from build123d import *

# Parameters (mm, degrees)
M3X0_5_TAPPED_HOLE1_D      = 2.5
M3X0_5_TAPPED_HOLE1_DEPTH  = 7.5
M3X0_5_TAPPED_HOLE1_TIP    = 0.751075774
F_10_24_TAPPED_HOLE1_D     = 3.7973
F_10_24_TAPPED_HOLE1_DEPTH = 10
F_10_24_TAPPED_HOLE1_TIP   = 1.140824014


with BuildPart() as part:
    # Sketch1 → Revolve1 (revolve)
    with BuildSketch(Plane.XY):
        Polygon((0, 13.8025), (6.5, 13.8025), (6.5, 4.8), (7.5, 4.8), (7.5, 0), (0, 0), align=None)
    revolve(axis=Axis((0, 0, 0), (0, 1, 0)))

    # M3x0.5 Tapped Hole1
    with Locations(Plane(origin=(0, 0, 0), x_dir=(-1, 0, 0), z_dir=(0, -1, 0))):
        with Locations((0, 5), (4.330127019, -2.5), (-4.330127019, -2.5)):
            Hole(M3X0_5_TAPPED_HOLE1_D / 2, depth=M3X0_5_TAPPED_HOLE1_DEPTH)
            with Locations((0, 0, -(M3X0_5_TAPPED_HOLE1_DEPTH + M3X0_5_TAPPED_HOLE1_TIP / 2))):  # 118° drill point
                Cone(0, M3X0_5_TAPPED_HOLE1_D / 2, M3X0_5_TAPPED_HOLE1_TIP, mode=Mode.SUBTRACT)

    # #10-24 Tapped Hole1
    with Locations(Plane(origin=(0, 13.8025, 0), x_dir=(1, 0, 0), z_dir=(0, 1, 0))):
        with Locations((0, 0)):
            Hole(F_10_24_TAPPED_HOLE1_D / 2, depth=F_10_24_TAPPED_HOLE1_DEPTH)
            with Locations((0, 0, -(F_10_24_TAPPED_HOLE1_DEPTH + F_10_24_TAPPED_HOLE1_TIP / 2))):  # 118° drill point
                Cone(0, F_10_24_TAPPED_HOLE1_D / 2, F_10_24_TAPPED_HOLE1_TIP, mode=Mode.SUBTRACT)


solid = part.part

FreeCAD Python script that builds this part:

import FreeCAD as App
import Part
import Sketcher
from FreeCAD import Vector
Q = App.Units.Quantity


def add_polygon(sketch, points):
    """Adds a closed chain of lines whose ends are joined by coincident constraints."""
    first, n = sketch.GeometryCount, len(points)
    for a, b in zip(points, points[1:] + points[:1]):
        sketch.addGeometry(Part.LineSegment(App.Vector(*a, 0), App.Vector(*b, 0)), False)
    for i in range(n):
        sketch.addConstraint(Sketcher.Constraint("Coincident", first + i, 2, first + (i + 1) % n, 1))

doc = App.newDocument("Part")
params = doc.addObject("Spreadsheet::Sheet", "Params")
for row, (alias, value) in enumerate([
    ("sketch1_width", "1 mm"),
    ("sketch1_width2", "6.5 mm"),
    ("sketch1_height", "4.8 mm"),
    ("revolution_angle", "360 deg"),
    ("sketch2_diameter", "2.5 mm"),
    ("hole_diameter", "2.5 mm"),
    ("hole_depth", "7.5 mm"),
    ("hole2_diameter", "3.7973 mm"),
    ("hole2_depth", "10 mm"),
], start=1):
    params.set(f"A{row}", alias)
    params.set(f"B{row}", "=" + value)
    params.setAlias(f"B{row}", alias)

body = doc.addObject("PartDesign::Body", "Body")

sketch1 = body.newObject("Sketcher::SketchObject", "Sketch")
sketch1.AttachmentSupport = (doc.getObject("XY_Plane"), [""])
sketch1.MapMode = "FlatFace"
add_polygon(sketch1, [(6.5, 13.8), (0, 13.8), (0, 0), (7.5, 0), (7.5, 4.8), (6.5, 4.8)])
sketch1.addConstraint([
    Sketcher.Constraint("Horizontal", 0),
    Sketcher.Constraint("Vertical", 1),
    Sketcher.Constraint("Horizontal", 2),
    Sketcher.Constraint("Vertical", 3),
    Sketcher.Constraint("Horizontal", 4),
    Sketcher.Constraint("Vertical", 5),
    Sketcher.Constraint("Coincident", 1, 2, -1, 1),
    Sketcher.Constraint("DistanceX", 4, 2, 4, 1, Q("1 mm")),
    Sketcher.Constraint("DistanceX", 0, 2, 0, 1, Q("6.5 mm")),
    Sketcher.Constraint("DistanceY", 3, 1, 3, 2, Q("4.8 mm")),
    Sketcher.Constraint("DistanceY", 1, 2, 1, 1, Q("13.8025 mm")),
])
sketch1.setExpression("Constraints[13]", "Params.sketch1_width")
sketch1.setExpression("Constraints[14]", "Params.sketch1_width2")
sketch1.setExpression("Constraints[15]", "Params.sketch1_height")
revolution = body.newObject("PartDesign::Revolution", "Revolution")
revolution.Profile = sketch1
revolution.ReferenceAxis = (sketch1, ["V_Axis"])
revolution.setExpression("Angle", "Params.revolution_angle")

sketch2 = body.newObject("Sketcher::SketchObject", "Sketch001")
sketch2.AttachmentSupport = (doc.getObject("XZ_Plane"), [""])
sketch2.MapMode = "FlatFace"
sketch2.addGeometry([
    Part.Circle(Vector(0, -5, 0), Vector(0, 0, 1), 1.2),
    Part.Circle(Vector(-4.3, 2.5, 0), Vector(0, 0, 1), 1.2),
    Part.Circle(Vector(4.3, 2.5, 0), Vector(0, 0, 1), 1.2),
], False)
sketch2.addConstraint([
    Sketcher.Constraint("Equal", 0, 1),
    Sketcher.Constraint("Equal", 1, 2),
    Sketcher.Constraint("Symmetric", 1, 3, 2, 3, -2),
    Sketcher.Constraint("PointOnObject", 0, 3, -2),
    Sketcher.Constraint("Diameter", 0, Q("2.5 mm")),
    Sketcher.Constraint("DistanceY", 0, 3, -1, 1, Q("5 mm")),
    Sketcher.Constraint("DistanceY", -1, 1, 1, 3, Q("2.5 mm")),
    Sketcher.Constraint("DistanceX", 1, 3, -1, 1, Q("4.330127 mm")),
])
sketch2.setExpression("Constraints[4]", "Params.sketch2_diameter")
doc.recompute()
hole = body.newObject("PartDesign::Hole", "Hole")
hole.Profile = sketch2
hole.ThreadType = "None"
hole.setExpression("Diameter", "Params.hole_diameter")
hole.DepthType = "Dimension"
hole.setExpression("Depth", "Params.hole_depth")
hole.DrillPoint = "Angled"
hole.DrillPointAngle = 118

sketch3 = body.newObject("Sketcher::SketchObject", "Sketch002")
sketch3.AttachmentSupport = (doc.getObject("XZ_Plane"), [""])
sketch3.MapMode = "FlatFace"
sketch3.AttachmentOffset = App.Placement(Vector(0, 0, -13.8025), App.Rotation())
sketch3.addGeometry(Part.Circle(Vector(0, 0, 0), Vector(0, 0, 1), 1.9), False)
sketch3.addConstraint([
    Sketcher.Constraint("Coincident", 0, 3, -1, 1),
    Sketcher.Constraint("Diameter", 0, Q("3.7973 mm")),
])
doc.recompute()
hole2 = body.newObject("PartDesign::Hole", "Hole001")
hole2.Profile = sketch3
hole2.ThreadType = "None"
hole2.setExpression("Diameter", "Params.hole2_diameter")
hole2.DepthType = "Dimension"
hole2.setExpression("Depth", "Params.hole2_depth")
hole2.DrillPoint = "Angled"
hole2.DrillPointAngle = 118
hole2.Reversed = True

doc.recompute()
